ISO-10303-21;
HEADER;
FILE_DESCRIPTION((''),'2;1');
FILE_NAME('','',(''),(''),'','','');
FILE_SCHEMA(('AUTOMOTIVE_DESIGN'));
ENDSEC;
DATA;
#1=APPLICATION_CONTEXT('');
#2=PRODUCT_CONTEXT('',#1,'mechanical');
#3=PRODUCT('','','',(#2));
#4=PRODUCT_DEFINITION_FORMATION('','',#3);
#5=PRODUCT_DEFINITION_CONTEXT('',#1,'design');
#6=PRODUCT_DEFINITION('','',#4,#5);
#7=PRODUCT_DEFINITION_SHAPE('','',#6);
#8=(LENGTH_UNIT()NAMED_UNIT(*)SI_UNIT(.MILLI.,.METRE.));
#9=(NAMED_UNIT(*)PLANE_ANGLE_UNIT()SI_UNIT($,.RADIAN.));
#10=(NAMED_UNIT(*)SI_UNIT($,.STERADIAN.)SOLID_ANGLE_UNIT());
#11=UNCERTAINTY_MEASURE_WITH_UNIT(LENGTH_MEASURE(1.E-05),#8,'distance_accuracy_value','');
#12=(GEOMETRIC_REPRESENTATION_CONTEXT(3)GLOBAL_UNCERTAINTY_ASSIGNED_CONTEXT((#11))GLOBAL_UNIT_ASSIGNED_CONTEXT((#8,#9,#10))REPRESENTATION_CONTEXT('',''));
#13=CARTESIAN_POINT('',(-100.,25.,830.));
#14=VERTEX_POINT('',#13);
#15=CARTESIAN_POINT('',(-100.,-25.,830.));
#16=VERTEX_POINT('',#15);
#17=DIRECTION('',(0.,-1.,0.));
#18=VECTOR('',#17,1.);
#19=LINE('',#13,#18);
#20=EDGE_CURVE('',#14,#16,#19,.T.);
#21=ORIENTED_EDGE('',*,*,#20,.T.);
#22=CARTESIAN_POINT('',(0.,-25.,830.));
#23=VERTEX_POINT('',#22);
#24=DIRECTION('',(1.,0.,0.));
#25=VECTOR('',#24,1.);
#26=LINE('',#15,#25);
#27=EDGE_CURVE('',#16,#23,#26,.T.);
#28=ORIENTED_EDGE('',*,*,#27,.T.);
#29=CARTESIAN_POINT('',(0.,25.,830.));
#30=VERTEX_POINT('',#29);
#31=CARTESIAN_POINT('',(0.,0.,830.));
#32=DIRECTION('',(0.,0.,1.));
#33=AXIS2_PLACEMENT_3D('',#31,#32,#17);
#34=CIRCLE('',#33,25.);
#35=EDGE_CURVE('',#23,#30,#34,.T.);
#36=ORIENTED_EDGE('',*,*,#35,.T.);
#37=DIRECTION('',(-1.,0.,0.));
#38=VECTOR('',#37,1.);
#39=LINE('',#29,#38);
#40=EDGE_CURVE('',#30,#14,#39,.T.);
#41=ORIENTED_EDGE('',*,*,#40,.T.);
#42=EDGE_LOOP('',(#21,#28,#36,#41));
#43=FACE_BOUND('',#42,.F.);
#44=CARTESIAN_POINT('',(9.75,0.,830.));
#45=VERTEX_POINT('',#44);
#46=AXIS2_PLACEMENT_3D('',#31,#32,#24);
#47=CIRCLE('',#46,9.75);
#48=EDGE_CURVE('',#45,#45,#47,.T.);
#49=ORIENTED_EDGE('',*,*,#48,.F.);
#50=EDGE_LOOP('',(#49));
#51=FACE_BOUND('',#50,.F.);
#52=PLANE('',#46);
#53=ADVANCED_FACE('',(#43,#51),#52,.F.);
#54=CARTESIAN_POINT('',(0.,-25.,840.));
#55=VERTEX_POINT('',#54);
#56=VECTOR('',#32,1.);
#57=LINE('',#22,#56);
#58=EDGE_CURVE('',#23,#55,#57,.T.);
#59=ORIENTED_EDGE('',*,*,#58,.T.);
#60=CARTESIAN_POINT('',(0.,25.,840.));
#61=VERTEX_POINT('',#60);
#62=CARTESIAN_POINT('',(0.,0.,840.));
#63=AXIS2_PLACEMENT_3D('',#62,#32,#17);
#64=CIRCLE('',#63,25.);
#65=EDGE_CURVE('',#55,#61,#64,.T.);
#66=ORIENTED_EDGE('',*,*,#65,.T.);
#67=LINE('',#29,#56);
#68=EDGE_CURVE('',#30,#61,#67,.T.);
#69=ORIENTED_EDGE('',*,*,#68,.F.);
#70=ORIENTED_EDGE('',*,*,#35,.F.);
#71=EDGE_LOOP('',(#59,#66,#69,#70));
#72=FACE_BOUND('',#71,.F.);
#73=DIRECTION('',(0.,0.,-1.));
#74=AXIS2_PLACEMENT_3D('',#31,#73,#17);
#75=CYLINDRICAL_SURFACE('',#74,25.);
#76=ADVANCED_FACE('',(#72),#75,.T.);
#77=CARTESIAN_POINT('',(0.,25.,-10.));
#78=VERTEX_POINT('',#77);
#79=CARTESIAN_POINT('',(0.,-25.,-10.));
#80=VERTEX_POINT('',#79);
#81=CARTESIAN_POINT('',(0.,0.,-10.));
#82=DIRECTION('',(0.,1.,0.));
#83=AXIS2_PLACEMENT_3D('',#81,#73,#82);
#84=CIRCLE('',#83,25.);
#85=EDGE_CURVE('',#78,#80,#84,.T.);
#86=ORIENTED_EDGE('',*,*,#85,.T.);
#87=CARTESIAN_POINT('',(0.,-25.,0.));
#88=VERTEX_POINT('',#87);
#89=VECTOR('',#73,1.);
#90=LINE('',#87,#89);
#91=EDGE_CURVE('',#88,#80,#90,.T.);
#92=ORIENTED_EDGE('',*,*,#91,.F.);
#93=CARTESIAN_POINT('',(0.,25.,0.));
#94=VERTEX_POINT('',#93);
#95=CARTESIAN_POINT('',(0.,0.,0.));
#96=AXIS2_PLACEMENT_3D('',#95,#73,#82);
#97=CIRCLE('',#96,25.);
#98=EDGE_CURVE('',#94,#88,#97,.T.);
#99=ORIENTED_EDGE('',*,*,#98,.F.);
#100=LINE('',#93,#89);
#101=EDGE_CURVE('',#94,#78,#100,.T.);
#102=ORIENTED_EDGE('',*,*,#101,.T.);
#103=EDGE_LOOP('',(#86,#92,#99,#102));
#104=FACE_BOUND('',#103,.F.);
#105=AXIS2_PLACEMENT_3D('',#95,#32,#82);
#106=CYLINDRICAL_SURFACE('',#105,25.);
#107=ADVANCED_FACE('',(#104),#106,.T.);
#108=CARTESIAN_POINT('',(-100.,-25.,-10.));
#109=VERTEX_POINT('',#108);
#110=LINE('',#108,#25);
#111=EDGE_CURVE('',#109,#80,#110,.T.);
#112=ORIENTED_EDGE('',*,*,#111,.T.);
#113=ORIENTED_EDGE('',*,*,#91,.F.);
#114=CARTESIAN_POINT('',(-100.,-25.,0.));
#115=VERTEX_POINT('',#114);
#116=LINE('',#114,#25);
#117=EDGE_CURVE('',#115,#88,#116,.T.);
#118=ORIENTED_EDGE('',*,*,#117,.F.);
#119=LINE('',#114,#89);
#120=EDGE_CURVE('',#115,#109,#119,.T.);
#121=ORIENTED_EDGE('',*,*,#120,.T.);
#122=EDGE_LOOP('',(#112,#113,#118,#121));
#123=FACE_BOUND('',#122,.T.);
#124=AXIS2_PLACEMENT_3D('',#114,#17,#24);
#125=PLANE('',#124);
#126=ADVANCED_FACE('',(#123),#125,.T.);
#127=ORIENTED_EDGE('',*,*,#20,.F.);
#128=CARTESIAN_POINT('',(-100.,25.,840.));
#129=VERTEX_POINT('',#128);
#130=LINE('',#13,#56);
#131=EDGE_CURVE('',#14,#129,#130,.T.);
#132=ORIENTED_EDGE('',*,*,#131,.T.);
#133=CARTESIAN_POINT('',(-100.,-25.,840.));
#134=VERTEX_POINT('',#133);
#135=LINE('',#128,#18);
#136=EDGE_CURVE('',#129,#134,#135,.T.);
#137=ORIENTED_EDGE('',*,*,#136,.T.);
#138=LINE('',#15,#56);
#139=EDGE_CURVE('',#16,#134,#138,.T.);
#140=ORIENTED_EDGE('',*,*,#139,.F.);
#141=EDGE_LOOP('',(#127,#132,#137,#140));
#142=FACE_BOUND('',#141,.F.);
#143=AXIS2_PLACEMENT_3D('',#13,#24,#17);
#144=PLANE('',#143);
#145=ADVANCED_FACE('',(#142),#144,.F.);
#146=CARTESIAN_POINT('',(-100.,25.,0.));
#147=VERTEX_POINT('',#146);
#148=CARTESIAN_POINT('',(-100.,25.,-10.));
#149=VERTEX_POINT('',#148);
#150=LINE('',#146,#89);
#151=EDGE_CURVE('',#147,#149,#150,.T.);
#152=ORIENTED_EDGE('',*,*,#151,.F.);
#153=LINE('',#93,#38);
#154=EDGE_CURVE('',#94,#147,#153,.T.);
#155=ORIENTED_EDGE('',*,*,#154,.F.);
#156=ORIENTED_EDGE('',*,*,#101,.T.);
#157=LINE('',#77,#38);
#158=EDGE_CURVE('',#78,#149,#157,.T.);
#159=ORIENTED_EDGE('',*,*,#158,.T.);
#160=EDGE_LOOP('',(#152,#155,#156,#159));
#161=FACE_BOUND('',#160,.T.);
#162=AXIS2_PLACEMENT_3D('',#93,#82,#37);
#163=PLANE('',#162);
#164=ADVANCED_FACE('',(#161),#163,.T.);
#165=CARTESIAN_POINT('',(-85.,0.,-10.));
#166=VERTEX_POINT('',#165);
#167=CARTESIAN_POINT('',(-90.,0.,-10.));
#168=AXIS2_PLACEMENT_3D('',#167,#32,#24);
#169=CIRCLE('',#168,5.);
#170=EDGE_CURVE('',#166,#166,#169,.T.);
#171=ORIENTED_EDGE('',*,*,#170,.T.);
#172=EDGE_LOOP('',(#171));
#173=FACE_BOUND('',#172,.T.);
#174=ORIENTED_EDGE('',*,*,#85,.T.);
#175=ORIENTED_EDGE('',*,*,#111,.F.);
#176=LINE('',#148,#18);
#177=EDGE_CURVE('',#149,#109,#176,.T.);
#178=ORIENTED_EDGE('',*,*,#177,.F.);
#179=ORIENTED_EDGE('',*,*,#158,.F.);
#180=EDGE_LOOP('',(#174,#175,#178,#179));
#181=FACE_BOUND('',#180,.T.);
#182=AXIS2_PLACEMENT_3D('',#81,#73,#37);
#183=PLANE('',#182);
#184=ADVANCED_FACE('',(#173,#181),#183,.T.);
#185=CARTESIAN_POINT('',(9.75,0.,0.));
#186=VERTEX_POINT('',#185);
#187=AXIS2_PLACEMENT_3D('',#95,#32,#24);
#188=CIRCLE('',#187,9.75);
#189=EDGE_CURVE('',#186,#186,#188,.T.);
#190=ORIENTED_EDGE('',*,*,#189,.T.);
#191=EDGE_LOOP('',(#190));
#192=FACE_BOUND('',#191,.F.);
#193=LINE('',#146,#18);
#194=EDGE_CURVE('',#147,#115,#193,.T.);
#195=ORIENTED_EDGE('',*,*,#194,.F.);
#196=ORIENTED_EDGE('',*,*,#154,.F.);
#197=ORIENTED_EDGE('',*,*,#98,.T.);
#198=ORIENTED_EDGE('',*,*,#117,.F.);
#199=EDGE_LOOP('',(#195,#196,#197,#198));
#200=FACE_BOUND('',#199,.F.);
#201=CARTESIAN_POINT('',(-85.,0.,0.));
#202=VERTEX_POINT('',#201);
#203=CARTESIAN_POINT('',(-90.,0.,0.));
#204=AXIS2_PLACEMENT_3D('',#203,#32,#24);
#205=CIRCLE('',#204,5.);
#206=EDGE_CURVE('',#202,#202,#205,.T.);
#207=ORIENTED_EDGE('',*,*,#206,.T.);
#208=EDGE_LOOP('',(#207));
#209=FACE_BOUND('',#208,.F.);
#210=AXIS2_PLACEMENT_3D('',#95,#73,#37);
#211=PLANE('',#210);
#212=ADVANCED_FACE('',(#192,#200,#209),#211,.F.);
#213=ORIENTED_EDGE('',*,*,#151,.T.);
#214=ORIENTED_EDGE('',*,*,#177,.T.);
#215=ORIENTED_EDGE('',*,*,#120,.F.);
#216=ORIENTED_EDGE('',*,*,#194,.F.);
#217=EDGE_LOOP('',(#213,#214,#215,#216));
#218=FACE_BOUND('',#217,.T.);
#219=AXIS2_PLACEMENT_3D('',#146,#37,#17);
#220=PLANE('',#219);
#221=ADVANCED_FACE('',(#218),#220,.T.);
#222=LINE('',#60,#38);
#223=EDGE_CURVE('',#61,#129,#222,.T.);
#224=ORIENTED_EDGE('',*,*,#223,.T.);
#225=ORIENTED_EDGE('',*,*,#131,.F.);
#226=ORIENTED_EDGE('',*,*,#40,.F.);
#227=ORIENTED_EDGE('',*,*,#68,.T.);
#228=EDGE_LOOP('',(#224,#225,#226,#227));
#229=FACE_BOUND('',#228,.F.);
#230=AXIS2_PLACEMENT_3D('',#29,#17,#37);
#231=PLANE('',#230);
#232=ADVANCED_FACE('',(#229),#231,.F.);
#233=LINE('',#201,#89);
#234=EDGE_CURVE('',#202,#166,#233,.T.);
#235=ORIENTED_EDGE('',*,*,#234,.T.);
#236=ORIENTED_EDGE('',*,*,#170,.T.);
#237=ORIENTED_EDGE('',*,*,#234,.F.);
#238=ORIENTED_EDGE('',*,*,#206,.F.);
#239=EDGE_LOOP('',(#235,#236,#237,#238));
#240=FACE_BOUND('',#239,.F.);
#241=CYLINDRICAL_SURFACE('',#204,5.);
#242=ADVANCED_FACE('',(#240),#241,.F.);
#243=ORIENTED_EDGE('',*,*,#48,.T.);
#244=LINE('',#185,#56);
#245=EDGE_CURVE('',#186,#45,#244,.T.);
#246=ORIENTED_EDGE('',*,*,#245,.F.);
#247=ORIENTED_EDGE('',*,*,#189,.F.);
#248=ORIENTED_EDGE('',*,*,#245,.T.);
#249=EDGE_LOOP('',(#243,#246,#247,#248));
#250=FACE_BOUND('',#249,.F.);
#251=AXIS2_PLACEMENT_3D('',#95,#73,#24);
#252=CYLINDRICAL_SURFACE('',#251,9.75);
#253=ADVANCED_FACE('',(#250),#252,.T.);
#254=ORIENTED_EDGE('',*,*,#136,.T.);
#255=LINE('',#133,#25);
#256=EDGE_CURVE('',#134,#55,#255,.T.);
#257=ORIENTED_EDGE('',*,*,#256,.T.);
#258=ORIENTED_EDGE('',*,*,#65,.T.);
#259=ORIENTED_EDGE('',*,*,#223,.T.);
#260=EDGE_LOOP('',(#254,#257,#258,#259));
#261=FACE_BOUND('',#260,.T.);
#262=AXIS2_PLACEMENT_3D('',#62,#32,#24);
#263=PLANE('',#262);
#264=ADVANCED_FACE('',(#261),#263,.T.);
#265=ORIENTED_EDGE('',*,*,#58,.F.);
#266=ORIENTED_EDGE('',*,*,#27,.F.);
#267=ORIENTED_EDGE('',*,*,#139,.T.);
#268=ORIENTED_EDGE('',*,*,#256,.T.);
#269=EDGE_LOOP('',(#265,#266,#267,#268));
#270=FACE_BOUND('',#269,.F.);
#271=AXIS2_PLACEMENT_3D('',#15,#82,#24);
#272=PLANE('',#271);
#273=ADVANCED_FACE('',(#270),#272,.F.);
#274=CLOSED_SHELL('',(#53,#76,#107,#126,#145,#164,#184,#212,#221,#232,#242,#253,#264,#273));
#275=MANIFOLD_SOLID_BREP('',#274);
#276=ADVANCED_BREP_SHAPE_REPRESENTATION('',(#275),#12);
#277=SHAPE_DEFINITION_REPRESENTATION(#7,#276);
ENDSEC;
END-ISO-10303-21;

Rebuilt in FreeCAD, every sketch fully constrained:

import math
import FreeCAD as App
import Part
import Sketcher

V = App.Vector
Q = App.Units.Quantity

doc = App.newDocument("Part")
params = doc.addObject("Spreadsheet::Sheet", "Params")
for row, (alias, value) in enumerate([
    ("sketch1_diameter", "19.5 mm"),
    ("pad1_length", "830 mm"),
    ("sketch2_radius", "25 mm"),
    ("sketch2_width", "100 mm"),
    ("pad2_length", "10 mm"),
    ("sketch3_radius", "25 mm"),
    ("sketch3_width", "100 mm"),
    ("pad3_length", "10 mm"),
    ("sketch4_diameter", "10 mm"),
    ("pocket1_length", "10 mm"),
], start=1):
    params.set(f"A{row}", alias)
    params.set(f"B{row}", "=" + value)
    params.setAlias(f"B{row}", alias)

body = doc.addObject("PartDesign::Body", "Body")

sketch1 = doc.addObject("Sketcher::SketchObject", "Sketch")
body.addObject(sketch1)
sketch1.AttachmentSupport = (doc.XY_Plane, [""])
sketch1.MapMode = "FlatFace"
sketch1.addGeometry(Part.Circle(V(0, 0, 0), V(0, 0, 1), 10), False)
sketch1.addConstraint([
    Sketcher.Constraint("Coincident", 0, 3, -1, 1),
    Sketcher.Constraint("Diameter", 0, Q("19.5 mm")),
])
sketch1.setExpression("Constraints[1]", "Params.sketch1_diameter")
pad1 = doc.addObject("PartDesign::Pad", "Pad")
body.addObject(pad1)
pad1.Profile = sketch1
pad1.setExpression("Length", "Params.pad1_length")

sketch2 = doc.addObject("Sketcher::SketchObject", "Sketch001")
body.addObject(sketch2)
sketch2.AttachmentSupport = (doc.XY_Plane, [""])
sketch2.MapMode = "FlatFace"
sketch2.AttachmentOffset = App.Placement(V(0, 0, 830), App.Rotation())
sketch2.addGeometry([
    Part.LineSegment(V(-100, -25, 0), V(0, -25, 0)),
    Part.ArcOfCircle(Part.Circle(V(0, 0, 0), V(0, 0, 1), 25), math.radians(-90), math.radians(90)),
    Part.LineSegment(V(0, 25, 0), V(-100, 25, 0)),
    Part.LineSegment(V(-100, 25, 0), V(-100, -25, 0)),
], False)
sketch2.addConstraint([
    Sketcher.Constraint("Tangent", 0, 2, 1, 1),
    Sketcher.Constraint("Tangent", 1, 2, 2, 1),
    Sketcher.Constraint("Coincident", 2, 2, 3, 1),
    Sketcher.Constraint("Coincident", 3, 2, 0, 1),
    Sketcher.Constraint("Horizontal", 0),
    Sketcher.Constraint("Horizontal", 2),
    Sketcher.Constraint("Vertical", 3),
    Sketcher.Constraint("Coincident", 1, 3, -1, 1),
    Sketcher.Constraint("Radius", 1, Q("25 mm")),
    Sketcher.Constraint("DistanceX", 0, 1, 0, 2, Q("100 mm")),
])
sketch2.setExpression("Constraints[8]", "Params.sketch2_radius")
sketch2.setExpression("Constraints[9]", "Params.sketch2_width")
pad2 = doc.addObject("PartDesign::Pad", "Pad001")
body.addObject(pad2)
pad2.Profile = sketch2
pad2.setExpression("Length", "Params.pad2_length")

sketch3 = doc.addObject("Sketcher::SketchObject", "Sketch002")
body.addObject(sketch3)
sketch3.AttachmentSupport = (doc.XY_Plane, [""])
sketch3.MapMode = "FlatFace"
sketch3.addGeometry([
    Part.LineSegment(V(-100, 25, 0), V(0, 25, 0)),
    Part.ArcOfCircle(Part.Circle(V(0, 0, 0), V(0, 0, 1), 25), math.radians(-90), math.radians(90)),
    Part.LineSegment(V(0, -25, 0), V(-100, -25, 0)),
    Part.LineSegment(V(-100, -25, 0), V(-100, 25, 0)),
], False)
sketch3.addConstraint([
    Sketcher.Constraint("Tangent", 0, 2, 1, 2),
    Sketcher.Constraint("Tangent", 1, 1, 2, 1),
    Sketcher.Constraint("Coincident", 2, 2, 3, 1),
    Sketcher.Constraint("Coincident", 3, 2, 0, 1),
    Sketcher.Constraint("Horizontal", 0),
    Sketcher.Constraint("Horizontal", 2),
    Sketcher.Constraint("Vertical", 3),
    Sketcher.Constraint("Coincident", 1, 3, -1, 1),
    Sketcher.Constraint("Radius", 1, Q("25 mm")),
    Sketcher.Constraint("DistanceX", 0, 1, 0, 2, Q("100 mm")),
])
sketch3.setExpression("Constraints[8]", "Params.sketch3_radius")
sketch3.setExpression("Constraints[9]", "Params.sketch3_width")
pad3 = doc.addObject("PartDesign::Pad", "Pad002")
body.addObject(pad3)
pad3.Profile = sketch3
pad3.setExpression("Length", "Params.pad3_length")
pad3.Reversed = True

sketch4 = doc.addObject("Sketcher::SketchObject", "Sketch003")
body.addObject(sketch4)
sketch4.AttachmentSupport = (doc.XY_Plane, [""])
sketch4.MapMode = "FlatFace"
sketch4.addGeometry(Part.Circle(V(-90, 0, 0), V(0, 0, 1), 5), False)
sketch4.addConstraint([
    Sketcher.Constraint("PointOnObject", 0, 3, -1),
    Sketcher.Constraint("Diameter", 0, Q("10 mm")),
    Sketcher.Constraint("DistanceX", 0, 3, -1, 1, Q("90 mm")),
])
sketch4.setExpression("Constraints[1]", "Params.sketch4_diameter")
pocket1 = doc.addObject("PartDesign::Pocket", "Pocket")
body.addObject(pocket1)
pocket1.Profile = sketch4
pocket1.setExpression("Length", "Params.pocket1_length")

doc.recompute()
